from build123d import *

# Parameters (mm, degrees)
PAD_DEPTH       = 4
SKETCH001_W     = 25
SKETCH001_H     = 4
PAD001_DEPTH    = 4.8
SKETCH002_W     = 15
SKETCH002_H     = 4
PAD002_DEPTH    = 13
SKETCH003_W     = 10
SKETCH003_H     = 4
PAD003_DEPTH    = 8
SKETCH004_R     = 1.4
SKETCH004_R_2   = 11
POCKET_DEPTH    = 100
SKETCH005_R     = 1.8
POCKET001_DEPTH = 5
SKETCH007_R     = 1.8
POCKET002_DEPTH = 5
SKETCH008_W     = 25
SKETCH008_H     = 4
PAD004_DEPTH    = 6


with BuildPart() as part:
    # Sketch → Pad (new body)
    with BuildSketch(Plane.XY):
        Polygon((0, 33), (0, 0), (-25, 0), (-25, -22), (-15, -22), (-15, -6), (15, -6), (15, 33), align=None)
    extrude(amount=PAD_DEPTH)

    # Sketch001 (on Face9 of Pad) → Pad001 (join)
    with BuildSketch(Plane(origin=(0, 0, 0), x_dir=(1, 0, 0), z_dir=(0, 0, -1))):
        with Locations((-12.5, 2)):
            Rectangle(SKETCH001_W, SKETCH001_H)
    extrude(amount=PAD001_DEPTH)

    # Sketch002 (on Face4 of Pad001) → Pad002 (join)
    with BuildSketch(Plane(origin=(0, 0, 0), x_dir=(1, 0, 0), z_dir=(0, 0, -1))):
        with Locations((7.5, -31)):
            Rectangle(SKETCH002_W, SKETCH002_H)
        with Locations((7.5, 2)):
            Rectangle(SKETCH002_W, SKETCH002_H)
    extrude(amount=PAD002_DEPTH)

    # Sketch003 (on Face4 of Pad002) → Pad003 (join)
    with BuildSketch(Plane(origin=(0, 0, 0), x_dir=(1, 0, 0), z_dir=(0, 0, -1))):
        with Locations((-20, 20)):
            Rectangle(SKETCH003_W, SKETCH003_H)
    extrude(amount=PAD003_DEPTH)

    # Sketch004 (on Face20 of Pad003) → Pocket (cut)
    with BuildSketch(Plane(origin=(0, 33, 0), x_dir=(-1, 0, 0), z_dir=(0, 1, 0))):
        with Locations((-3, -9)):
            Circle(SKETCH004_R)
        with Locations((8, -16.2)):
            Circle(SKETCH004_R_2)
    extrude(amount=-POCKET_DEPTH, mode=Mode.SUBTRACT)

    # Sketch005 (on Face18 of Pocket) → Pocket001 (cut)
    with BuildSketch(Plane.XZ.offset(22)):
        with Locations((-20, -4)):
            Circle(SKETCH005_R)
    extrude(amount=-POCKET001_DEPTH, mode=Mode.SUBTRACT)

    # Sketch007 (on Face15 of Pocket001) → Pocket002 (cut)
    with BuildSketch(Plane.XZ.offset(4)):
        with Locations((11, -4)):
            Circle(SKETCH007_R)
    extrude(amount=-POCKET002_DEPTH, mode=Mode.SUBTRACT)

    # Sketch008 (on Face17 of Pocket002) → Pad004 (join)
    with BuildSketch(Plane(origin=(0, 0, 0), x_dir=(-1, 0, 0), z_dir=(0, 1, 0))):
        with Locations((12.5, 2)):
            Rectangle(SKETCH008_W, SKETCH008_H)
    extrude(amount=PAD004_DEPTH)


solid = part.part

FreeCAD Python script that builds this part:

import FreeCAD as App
import Part
import Sketcher

V = App.Vector
Q = App.Units.Quantity

doc = App.newDocument("Part")
params = doc.addObject("Spreadsheet::Sheet", "Params")
for row, (alias, value) in enumerate([
    ("sketch1_width", "25 mm"),
    ("sketch1_width2", "10 mm"),
    ("sketch1_width3", "30 mm"),
    ("sketch1_height", "33 mm"),
    ("sketch1_height2", "22 mm"),
    ("pad1_length", "4 mm"),
    ("sketch2_width", "25 mm"),
    ("sketch2_height", "4 mm"),
    ("pad2_length", "4.8 mm"),
    ("sketch3_width", "15 mm"),
    ("sketch3_height", "4 mm"),
    ("pad3_length", "13 mm"),
    ("sketch4_width", "10 mm"),
    ("sketch4_height", "4 mm"),
    ("pad4_length", "8 mm"),
    ("sketch5_diameter", "22 mm"),
    ("sketch5_diameter2", "2.8 mm"),
    ("pocket1_length", "100 mm"),
    ("sketch6_diameter", "3.6 mm"),
    ("pocket2_length", "5 mm"),
    ("sketch7_diameter", "3.6 mm"),
    ("pocket3_length", "5 mm"),
    ("sketch8_width", "25 mm"),
    ("sketch8_height", "4 mm"),
    ("pad5_length", "6 mm"),
], start=1):
    params.set(f"A{row}", alias)
    params.set(f"B{row}", "=" + value)
    params.setAlias(f"B{row}", alias)

body = doc.addObject("PartDesign::Body", "Body")

# Sketch on XY plane
sketch1 = doc.addObject("Sketcher::SketchObject", "Sketch")
body.addObject(sketch1)
sketch1.AttachmentSupport = (doc.XY_Plane, [""])
sketch1.MapMode = "FlatFace"
sketch1.addGeometry([
    Part.LineSegment(V(0, 33, 0), V(0, 0, 0)),  # 0
    Part.LineSegment(V(0, 0, 0), V(-25, 0, 0)),  # 1
    Part.LineSegment(V(-25, 0, 0), V(-25, -22, 0)),  # 2
    Part.LineSegment(V(-25, -22, 0), V(-15, -22, 0)),  # 3
    Part.LineSegment(V(-15, -22, 0), V(-15, -6, 0)),  # 4
    Part.LineSegment(V(-15, -6, 0), V(15, -6, 0)),  # 5
    Part.LineSegment(V(15, -6, 0), V(15, 33, 0)),  # 6
    Part.LineSegment(V(15, 33, 0), V(0, 33, 0)),  # 7
], False)
sketch1.addConstraint([
    Sketcher.Constraint("Coincident", 0, 2, 1, 1),
    Sketcher.Constraint("Coincident", 1, 2, 2, 1),
    Sketcher.Constraint("Coincident", 2, 2, 3, 1),
    Sketcher.Constraint("Coincident", 3, 2, 4, 1),
    Sketcher.Constraint("Coincident", 4, 2, 5, 1),
    Sketcher.Constraint("Coincident", 5, 2, 6, 1),
    Sketcher.Constraint("Coincident", 6, 2, 7, 1),
    Sketcher.Constraint("Coincident", 7, 2, 0, 1),
    Sketcher.Constraint("Vertical", 0),
    Sketcher.Constraint("Horizontal", 1),
    Sketcher.Constraint("Vertical", 2),
    Sketcher.Constraint("Horizontal", 3),
    Sketcher.Constraint("Vertical", 4),
    Sketcher.Constraint("Horizontal", 5),
    Sketcher.Constraint("Vertical", 6),
    Sketcher.Constraint("Horizontal", 7),
    Sketcher.Constraint("Coincident", 0, 2, -1, 1),
    Sketcher.Constraint("DistanceX", 1, 2, 1, 1, Q("25 mm")),
    Sketcher.Constraint("DistanceX", 3, 1, 3, 2, Q("10 mm")),
    Sketcher.Constraint("DistanceX", 5, 1, 5, 2, Q("30 mm")),
    Sketcher.Constraint("DistanceY", 0, 2, 0, 1, Q("33 mm")),
    Sketcher.Constraint("DistanceY", 2, 2, 2, 1, Q("22 mm")),
    Sketcher.Constraint("DistanceY", 4, 1, 4, 2, Q("16 mm")),
])
sketch1.setExpression("Constraints[17]", "Params.sketch1_width")
sketch1.setExpression("Constraints[18]", "Params.sketch1_width2")
sketch1.setExpression("Constraints[19]", "Params.sketch1_width3")
sketch1.setExpression("Constraints[20]", "Params.sketch1_height")
sketch1.setExpression("Constraints[21]", "Params.sketch1_height2")
pad1 = doc.addObject("PartDesign::Pad", "Pad")
body.addObject(pad1)
pad1.Profile = sketch1
pad1.setExpression("Length", "Params.pad1_length")

# Sketch on XY plane
sketch2 = doc.addObject("Sketcher::SketchObject", "Sketch001")
body.addObject(sketch2)
sketch2.AttachmentSupport = (doc.XY_Plane, [""])
sketch2.MapMode = "FlatFace"
sketch2.addGeometry([
    Part.LineSegment(V(-25, -4, 0), V(-25, 0, 0)),
    Part.LineSegment(V(-25, 0, 0), V(0, 0, 0)),
    Part.LineSegment(V(0, 0, 0), V(0, -4, 0)),
    Part.LineSegment(V(0, -4, 0), V(-25, -4, 0)),
], False)
sketch2.addConstraint([
    Sketcher.Constraint("Coincident", 0, 2, 1, 1),
    Sketcher.Constraint("Coincident", 1, 2, 2, 1),
    Sketcher.Constraint("Coincident", 2, 2, 3, 1),
    Sketcher.Constraint("Coincident", 3, 2, 0, 1),
    Sketcher.Constraint("Vertical", 0),
    Sketcher.Constraint("Horizontal", 1),
    Sketcher.Constraint("Vertical", 2),
    Sketcher.Constraint("Horizontal", 3),
    Sketcher.Constraint("Coincident", 1, 2, -1, 1),
    Sketcher.Constraint("DistanceX", 1, 1, 1, 2, Q("25 mm")),
    Sketcher.Constraint("DistanceY", 0, 1, 0, 2, Q("4 mm")),
])
sketch2.setExpression("Constraints[9]", "Params.sketch2_width")
sketch2.setExpression("Constraints[10]", "Params.sketch2_height")
pad2 = doc.addObject("PartDesign::Pad", "Pad001")
body.addObject(pad2)
pad2.Profile = sketch2
pad2.setExpression("Length", "Params.pad2_length")
pad2.Reversed = True

# Sketch on XY plane
sketch3 = doc.addObject("Sketcher::SketchObject", "Sketch002")
body.addObject(sketch3)
sketch3.AttachmentSupport = (doc.XY_Plane, [""])
sketch3.MapMode = "FlatFace"
sketch3.addGeometry([
    Part.LineSegment(V(0, 29, 0), V(0, 33, 0)),  # 0
    Part.LineSegment(V(0, 33, 0), V(15, 33, 0)),  # 1
    Part.LineSegment(V(15, 33, 0), V(15, 29, 0)),  # 2
    Part.LineSegment(V(15, 29, 0), V(0, 29, 0)),  # 3
    Part.LineSegment(V(0, -4, 0), V(0, 0, 0)),  # 4
    Part.LineSegment(V(0, 0, 0), V(15, 0, 0)),  # 5
    Part.LineSegment(V(15, 0, 0), V(15, -4, 0)),  # 6
    Part.LineSegment(V(15, -4, 0), V(0, -4, 0)),  # 7
], False)
sketch3.addConstraint([
    Sketcher.Constraint("Coincident", 0, 2, 1, 1),
    Sketcher.Constraint("Coincident", 1, 2, 2, 1),
    Sketcher.Constraint("Coincident", 2, 2, 3, 1),
    Sketcher.Constraint("Coincident", 3, 2, 0, 1),
    Sketcher.Constraint("Coincident", 4, 2, 5, 1),
    Sketcher.Constraint("Coincident", 5, 2, 6, 1),
    Sketcher.Constraint("Coincident", 6, 2, 7, 1),
    Sketcher.Constraint("Coincident", 7, 2, 4, 1),
    Sketcher.Constraint("Vertical", 0),
    Sketcher.Constraint("Horizontal", 1),
    Sketcher.Constraint("Vertical", 2),
    Sketcher.Constraint("Horizontal", 3),
    Sketcher.Constraint("Vertical", 4),
    Sketcher.Constraint("Horizontal", 5),
    Sketcher.Constraint("Vertical", 6),
    Sketcher.Constraint("Horizontal", 7),
    Sketcher.Constraint("Coincident", 4, 2, -1, 1),
    Sketcher.Constraint("PointOnObject", 0, 2, -2),
    Sketcher.Constraint("Vertical", 2, 2, 5, 2),
    Sketcher.Constraint("Equal", 2, 4),
    Sketcher.Constraint("DistanceX", 1, 1, 1, 2, Q("15 mm")),
    Sketcher.Constraint("DistanceY", 0, 1, 0, 2, Q("4 mm")),
    Sketcher.Constraint("DistanceY", -1, 1, 0, 2, Q("33 mm")),
])
sketch3.setExpression("Constraints[20]", "Params.sketch3_width")
sketch3.setExpression("Constraints[21]", "Params.sketch3_height")
pad3 = doc.addObject("PartDesign::Pad", "Pad002")
body.addObject(pad3)
pad3.Profile = sketch3
pad3.setExpression("Length", "Params.pad3_length")
pad3.Reversed = True

# Sketch on XY plane
sketch4 = doc.addObject("Sketcher::SketchObject", "Sketch003")
body.addObject(sketch4)
sketch4.AttachmentSupport = (doc.XY_Plane, [""])
sketch4.MapMode = "FlatFace"
sketch4.addGeometry([
    Part.LineSegment(V(-25, -22, 0), V(-25, -18, 0)),
    Part.LineSegment(V(-25, -18, 0), V(-15, -18, 0)),
    Part.LineSegment(V(-15, -18, 0), V(-15, -22, 0)),
    Part.LineSegment(V(-15, -22, 0), V(-25, -22, 0)),
], False)
sketch4.addConstraint([
    Sketcher.Constraint("Coincident", 0, 2, 1, 1),
    Sketcher.Constraint("Coincident", 1, 2, 2, 1),
    Sketcher.Constraint("Coincident", 2, 2, 3, 1),
    Sketcher.Constraint("Coincident", 3, 2, 0, 1),
    Sketcher.Constraint("Vertical", 0),
    Sketcher.Constraint("Horizontal", 1),
    Sketcher.Constraint("Vertical", 2),
    Sketcher.Constraint("Horizontal", 3),
    Sketcher.Constraint("DistanceX", 1, 1, 1, 2, Q("10 mm")),
    Sketcher.Constraint("DistanceY", 0, 1, 0, 2, Q("4 mm")),
    Sketcher.Constraint("DistanceX", 0, 2, -1, 1, Q("25 mm")),
    Sketcher.Constraint("DistanceY", 0, 2, -1, 1, Q("18 mm")),
])
sketch4.setExpression("Constraints[8]", "Params.sketch4_width")
sketch4.setExpression("Constraints[9]", "Params.sketch4_height")
pad4 = doc.addObject("PartDesign::Pad", "Pad003")
body.addObject(pad4)
pad4.Profile = sketch4
pad4.setExpression("Length", "Params.pad4_length")
pad4.Reversed = True

# Sketch on XZ plane
sketch5 = doc.addObject("Sketcher::SketchObject", "Sketch004")
body.addObject(sketch5)
sketch5.AttachmentSupport = (doc.XZ_Plane, [""])
sketch5.MapMode = "FlatFace"
sketch5.AttachmentOffset = App.Placement(V(0, 0, -33), App.Rotation())
sketch5.addGeometry([
    Part.Circle(V(3, -9, 0), V(0, 0, 1), 1.4),
    Part.Circle(V(-8, -16.2, 0), V(0, 0, 1), 11),
], False)
sketch5.addConstraint([
    Sketcher.Constraint("Diameter", 1, Q("22 mm")),
    Sketcher.Constraint("Diameter", 0, Q("2.8 mm")),
    Sketcher.Constraint("DistanceX", -1, 1, 0, 3, Q("3 mm")),
    Sketcher.Constraint("DistanceY", 0, 3, -1, 1, Q("9 mm")),
    Sketcher.Constraint("DistanceX", 1, 3, -1, 1, Q("8 mm")),
    Sketcher.Constraint("DistanceY", 1, 3, -1, 1, Q("16.2 mm")),
])
sketch5.setExpression("Constraints[0]", "Params.sketch5_diameter")
sketch5.setExpression("Constraints[1]", "Params.sketch5_diameter2")
pocket1 = doc.addObject("PartDesign::Pocket", "Pocket")
body.addObject(pocket1)
pocket1.Profile = sketch5
pocket1.setExpression("Length", "Params.pocket1_length")
pocket1.Reversed = True

# Sketch on XZ plane
sketch6 = doc.addObject("Sketcher::SketchObject", "Sketch005")
body.addObject(sketch6)
sketch6.AttachmentSupport = (doc.XZ_Plane, [""])
sketch6.MapMode = "FlatFace"
sketch6.AttachmentOffset = App.Placement(V(0, 0, 22), App.Rotation())
sketch6.addGeometry(Part.Circle(V(-20, -4, 0), V(0, 0, 1), 1.8), False)
sketch6.addConstraint([
    Sketcher.Constraint("Diameter", 0, Q("3.6 mm")),
    Sketcher.Constraint("DistanceX", 0, 3, -1, 1, Q("20 mm")),
    Sketcher.Constraint("DistanceY", 0, 3, -1, 1, Q("4 mm")),
])
sketch6.setExpression("Constraints[0]", "Params.sketch6_diameter")
pocket2 = doc.addObject("PartDesign::Pocket", "Pocket001")
body.addObject(pocket2)
pocket2.Profile = sketch6
pocket2.setExpression("Length", "Params.pocket2_length")

# Sketch on XZ plane
sketch7 = doc.addObject("Sketcher::SketchObject", "Sketch006")
body.addObject(sketch7)
sketch7.AttachmentSupport = (doc.XZ_Plane, [""])
sketch7.MapMode = "FlatFace"
sketch7.AttachmentOffset = App.Placement(V(0, 0, 4), App.Rotation())
sketch7.addGeometry(Part.Circle(V(11, -4, 0), V(0, 0, 1), 1.8), False)
sketch7.addConstraint([
    Sketcher.Constraint("Diameter", 0, Q("3.6 mm")),
    Sketcher.Constraint("DistanceX", -1, 1, 0, 3, Q("11 mm")),
    Sketcher.Constraint("DistanceY", 0, 3, -1, 1, Q("4 mm")),
])
sketch7.setExpression("Constraints[0]", "Params.sketch7_diameter")
pocket3 = doc.addObject("PartDesign::Pocket", "Pocket002")
body.addObject(pocket3)
pocket3.Profile = sketch7
pocket3.setExpression("Length", "Params.pocket3_length")

# Sketch on XZ plane
sketch8 = doc.addObject("Sketcher::SketchObject", "Sketch007")
body.addObject(sketch8)
sketch8.AttachmentSupport = (doc.XZ_Plane, [""])
sketch8.MapMode = "FlatFace"
sketch8.addGeometry([
    Part.LineSegment(V(0, 4, 0), V(0, 0, 0)),
    Part.LineSegment(V(0, 0, 0), V(-25, 0, 0)),
    Part.LineSegment(V(-25, 0, 0), V(-25, 4, 0)),
    Part.LineSegment(V(-25, 4, 0), V(0, 4, 0)),
], False)
sketch8.addConstraint([
    Sketcher.Constraint("Coincident", 0, 2, 1, 1),
    Sketcher.Constraint("Coincident", 1, 2, 2, 1),
    Sketcher.Constraint("Coincident", 2, 2, 3, 1),
    Sketcher.Constraint("Coincident", 3, 2, 0, 1),
    Sketcher.Constraint("Vertical", 0),
    Sketcher.Constraint("Horizontal", 1),
    Sketcher.Constraint("Vertical", 2),
    Sketcher.Constraint("Horizontal", 3),
    Sketcher.Constraint("Coincident", 0, 2, -1, 1),
    Sketcher.Constraint("DistanceX", 1, 2, 1, 1, Q("25 mm")),
    Sketcher.Constraint("DistanceY", 0, 2, 0, 1, Q("4 mm")),
])
sketch8.setExpression("Constraints[9]", "Params.sketch8_width")
sketch8.setExpression("Constraints[10]", "Params.sketch8_height")
pad5 = doc.addObject("PartDesign::Pad", "Pad004")
body.addObject(pad5)
pad5.Profile = sketch8
pad5.setExpression("Length", "Params.pad5_length")
pad5.Reversed = True

doc.recompute()
